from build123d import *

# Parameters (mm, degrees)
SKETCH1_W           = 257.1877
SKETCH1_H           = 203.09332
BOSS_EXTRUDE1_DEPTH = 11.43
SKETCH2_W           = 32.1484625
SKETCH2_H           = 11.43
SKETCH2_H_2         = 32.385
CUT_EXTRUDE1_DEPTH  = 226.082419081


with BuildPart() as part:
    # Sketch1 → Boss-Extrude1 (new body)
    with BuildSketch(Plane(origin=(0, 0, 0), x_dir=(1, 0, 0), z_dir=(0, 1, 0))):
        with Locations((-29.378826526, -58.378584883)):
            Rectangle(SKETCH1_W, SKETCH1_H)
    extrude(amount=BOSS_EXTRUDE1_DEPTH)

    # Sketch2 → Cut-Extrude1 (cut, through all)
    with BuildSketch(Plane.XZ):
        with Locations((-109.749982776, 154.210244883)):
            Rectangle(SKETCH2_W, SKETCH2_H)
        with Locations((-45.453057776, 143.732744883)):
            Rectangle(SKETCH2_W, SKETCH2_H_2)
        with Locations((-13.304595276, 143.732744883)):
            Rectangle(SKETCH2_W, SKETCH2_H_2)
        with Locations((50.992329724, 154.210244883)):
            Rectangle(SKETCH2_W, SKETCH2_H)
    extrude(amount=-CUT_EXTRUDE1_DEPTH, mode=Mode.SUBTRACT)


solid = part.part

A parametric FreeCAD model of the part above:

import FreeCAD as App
import Part
import Sketcher
Q = App.Units.Quantity

doc = App.newDocument("Part")
params = doc.addObject("Spreadsheet::Sheet", "Params")
for row, (alias, value) in enumerate([
    ("pad1_length", "0.45 in"),
    ("sketch2_height", "0.45 in"),
    ("sketch2_height2", "1.275 in"),
], start=1):
    params.set(f"A{row}", alias)
    params.set(f"B{row}", "=" + value)
    params.setAlias(f"B{row}", alias)

body = doc.addObject("PartDesign::Body", "Body")

sketch1 = body.newObject("Sketcher::SketchObject", "Sketch")
sketch1.AttachmentSupport = (doc.getObject("XZ_Plane"), [""])
sketch1.MapMode = "FlatFace"
sketch1.addGeometry([
    Part.LineSegment(App.Vector(-158, -43, 0), App.Vector(-158, 160, 0)),
    Part.LineSegment(App.Vector(-158, 160, 0), App.Vector(99, 160, 0)),
    Part.LineSegment(App.Vector(99, 160, 0), App.Vector(99, -43, 0)),
    Part.LineSegment(App.Vector(99, -43, 0), App.Vector(-158, -43, 0)),
], False)
sketch1.addConstraint([
    Sketcher.Constraint("Coincident", 0, 2, 1, 1),
    Sketcher.Constraint("Coincident", 1, 2, 2, 1),
    Sketcher.Constraint("Coincident", 2, 2, 3, 1),
    Sketcher.Constraint("Coincident", 3, 2, 0, 1),
    Sketcher.Constraint("Vertical", 0),
    Sketcher.Constraint("Horizontal", 1),
    Sketcher.Constraint("Vertical", 2),
    Sketcher.Constraint("Horizontal", 3),
    Sketcher.Constraint("DistanceX", 1, 1, 1, 2, Q("10.1255 in")),
    Sketcher.Constraint("DistanceY", 0, 1, 0, 2, Q("7.9958 in")),
    Sketcher.Constraint("DistanceX", 0, 2, -1, 1, Q("157.972677 mm")),
    Sketcher.Constraint("DistanceY", -1, 1, 0, 2, Q("159.925245 mm")),
])
pad1 = body.newObject("PartDesign::Pad", "Pad")
pad1.Profile = sketch1
pad1.setExpression("Length", "Params.pad1_length")
pad1.Reversed = True

sketch2 = body.newObject("Sketcher::SketchObject", "Sketch001")
sketch2.AttachmentSupport = (doc.getObject("XZ_Plane"), [""])
sketch2.MapMode = "FlatFace"
sketch2.addGeometry([
    Part.LineSegment(App.Vector(-126, 160, 0), App.Vector(-126, 148, 0)),
    Part.LineSegment(App.Vector(-126, 148, 0), App.Vector(-94, 148, 0)),
    Part.LineSegment(App.Vector(-94, 148, 0), App.Vector(-94, 160, 0)),
    Part.LineSegment(App.Vector(-94, 160, 0), App.Vector(-126, 160, 0)),
    Part.LineSegment(App.Vector(-62, 160, 0), App.Vector(-62, 128, 0)),
    Part.LineSegment(App.Vector(-62, 128, 0), App.Vector(3, 128, 0)),
    Part.LineSegment(App.Vector(3, 128, 0), App.Vector(3, 160, 0)),
    Part.LineSegment(App.Vector(3, 160, 0), App.Vector(-62, 160, 0)),
    Part.LineSegment(App.Vector(35, 160, 0), App.Vector(35, 148, 0)),
    Part.LineSegment(App.Vector(35, 148, 0), App.Vector(67, 148, 0)),
    Part.LineSegment(App.Vector(67, 148, 0), App.Vector(67, 160, 0)),
    Part.LineSegment(App.Vector(67, 160, 0), App.Vector(35, 160, 0)),
], False)
sketch2.addConstraint([
    Sketcher.Constraint("Coincident", 0, 2, 1, 1),
    Sketcher.Constraint("Coincident", 1, 2, 2, 1),
    Sketcher.Constraint("Coincident", 2, 2, 3, 1),
    Sketcher.Constraint("Coincident", 3, 2, 0, 1),
    Sketcher.Constraint("Coincident", 4, 2, 5, 1),
    Sketcher.Constraint("Coincident", 5, 2, 6, 1),
    Sketcher.Constraint("Coincident", 6, 2, 7, 1),
    Sketcher.Constraint("Coincident", 7, 2, 4, 1),
    Sketcher.Constraint("Coincident", 8, 2, 9, 1),
    Sketcher.Constraint("Coincident", 9, 2, 10, 1),
    Sketcher.Constraint("Coincident", 10, 2, 11, 1),
    Sketcher.Constraint("Coincident", 11, 2, 8, 1),
    Sketcher.Constraint("Vertical", 0),
    Sketcher.Constraint("Horizontal", 1),
    Sketcher.Constraint("Vertical", 2),
    Sketcher.Constraint("Horizontal", 3),
    Sketcher.Constraint("Vertical", 4),
    Sketcher.Constraint("Horizontal", 5),
    Sketcher.Constraint("Vertical", 6),
    Sketcher.Constraint("Horizontal", 7),
    Sketcher.Constraint("Vertical", 8),
    Sketcher.Constraint("Horizontal", 9),
    Sketcher.Constraint("Vertical", 10),
    Sketcher.Constraint("Horizontal", 11),
    Sketcher.Constraint("Horizontal", 3, 2, 6, 2),
    Sketcher.Constraint("Horizontal", 1, 2, 8, 2),
    Sketcher.Constraint("Horizontal", 7, 2, 10, 2),
    Sketcher.Constraint("Equal", 3, 9),
    Sketcher.Constraint("DistanceY", 0, 2, 0, 1, Q("0.45 in")),
    Sketcher.Constraint("DistanceY", 4, 2, 4, 1, Q("1.275 in")),
    Sketcher.Constraint("DistanceX", -1, 1, 8, 2, Q("34.918098 mm")),
    Sketcher.Constraint("DistanceX", 1, 1, 1, 2, Q("32.148463 mm")),
    Sketcher.Constraint("DistanceX", 5, 1, 5, 2, Q("64.296925 mm")),
    Sketcher.Constraint("DistanceX", 1, 2, -1, 1, Q("93.675752 mm")),
    Sketcher.Constraint("DistanceX", 4, 2, -1, 1, Q("61.527289 mm")),
    Sketcher.Constraint("DistanceY", -1, 1, 0, 2, Q("148.495245 mm")),
])
sketch2.setExpression("Constraints[28]", "Params.sketch2_height")
sketch2.setExpression("Constraints[29]", "Params.sketch2_height2")
pocket1 = body.newObject("PartDesign::Pocket", "Pocket")
pocket1.Profile = sketch2
pocket1.Type = "ThroughAll"

doc.recompute()
